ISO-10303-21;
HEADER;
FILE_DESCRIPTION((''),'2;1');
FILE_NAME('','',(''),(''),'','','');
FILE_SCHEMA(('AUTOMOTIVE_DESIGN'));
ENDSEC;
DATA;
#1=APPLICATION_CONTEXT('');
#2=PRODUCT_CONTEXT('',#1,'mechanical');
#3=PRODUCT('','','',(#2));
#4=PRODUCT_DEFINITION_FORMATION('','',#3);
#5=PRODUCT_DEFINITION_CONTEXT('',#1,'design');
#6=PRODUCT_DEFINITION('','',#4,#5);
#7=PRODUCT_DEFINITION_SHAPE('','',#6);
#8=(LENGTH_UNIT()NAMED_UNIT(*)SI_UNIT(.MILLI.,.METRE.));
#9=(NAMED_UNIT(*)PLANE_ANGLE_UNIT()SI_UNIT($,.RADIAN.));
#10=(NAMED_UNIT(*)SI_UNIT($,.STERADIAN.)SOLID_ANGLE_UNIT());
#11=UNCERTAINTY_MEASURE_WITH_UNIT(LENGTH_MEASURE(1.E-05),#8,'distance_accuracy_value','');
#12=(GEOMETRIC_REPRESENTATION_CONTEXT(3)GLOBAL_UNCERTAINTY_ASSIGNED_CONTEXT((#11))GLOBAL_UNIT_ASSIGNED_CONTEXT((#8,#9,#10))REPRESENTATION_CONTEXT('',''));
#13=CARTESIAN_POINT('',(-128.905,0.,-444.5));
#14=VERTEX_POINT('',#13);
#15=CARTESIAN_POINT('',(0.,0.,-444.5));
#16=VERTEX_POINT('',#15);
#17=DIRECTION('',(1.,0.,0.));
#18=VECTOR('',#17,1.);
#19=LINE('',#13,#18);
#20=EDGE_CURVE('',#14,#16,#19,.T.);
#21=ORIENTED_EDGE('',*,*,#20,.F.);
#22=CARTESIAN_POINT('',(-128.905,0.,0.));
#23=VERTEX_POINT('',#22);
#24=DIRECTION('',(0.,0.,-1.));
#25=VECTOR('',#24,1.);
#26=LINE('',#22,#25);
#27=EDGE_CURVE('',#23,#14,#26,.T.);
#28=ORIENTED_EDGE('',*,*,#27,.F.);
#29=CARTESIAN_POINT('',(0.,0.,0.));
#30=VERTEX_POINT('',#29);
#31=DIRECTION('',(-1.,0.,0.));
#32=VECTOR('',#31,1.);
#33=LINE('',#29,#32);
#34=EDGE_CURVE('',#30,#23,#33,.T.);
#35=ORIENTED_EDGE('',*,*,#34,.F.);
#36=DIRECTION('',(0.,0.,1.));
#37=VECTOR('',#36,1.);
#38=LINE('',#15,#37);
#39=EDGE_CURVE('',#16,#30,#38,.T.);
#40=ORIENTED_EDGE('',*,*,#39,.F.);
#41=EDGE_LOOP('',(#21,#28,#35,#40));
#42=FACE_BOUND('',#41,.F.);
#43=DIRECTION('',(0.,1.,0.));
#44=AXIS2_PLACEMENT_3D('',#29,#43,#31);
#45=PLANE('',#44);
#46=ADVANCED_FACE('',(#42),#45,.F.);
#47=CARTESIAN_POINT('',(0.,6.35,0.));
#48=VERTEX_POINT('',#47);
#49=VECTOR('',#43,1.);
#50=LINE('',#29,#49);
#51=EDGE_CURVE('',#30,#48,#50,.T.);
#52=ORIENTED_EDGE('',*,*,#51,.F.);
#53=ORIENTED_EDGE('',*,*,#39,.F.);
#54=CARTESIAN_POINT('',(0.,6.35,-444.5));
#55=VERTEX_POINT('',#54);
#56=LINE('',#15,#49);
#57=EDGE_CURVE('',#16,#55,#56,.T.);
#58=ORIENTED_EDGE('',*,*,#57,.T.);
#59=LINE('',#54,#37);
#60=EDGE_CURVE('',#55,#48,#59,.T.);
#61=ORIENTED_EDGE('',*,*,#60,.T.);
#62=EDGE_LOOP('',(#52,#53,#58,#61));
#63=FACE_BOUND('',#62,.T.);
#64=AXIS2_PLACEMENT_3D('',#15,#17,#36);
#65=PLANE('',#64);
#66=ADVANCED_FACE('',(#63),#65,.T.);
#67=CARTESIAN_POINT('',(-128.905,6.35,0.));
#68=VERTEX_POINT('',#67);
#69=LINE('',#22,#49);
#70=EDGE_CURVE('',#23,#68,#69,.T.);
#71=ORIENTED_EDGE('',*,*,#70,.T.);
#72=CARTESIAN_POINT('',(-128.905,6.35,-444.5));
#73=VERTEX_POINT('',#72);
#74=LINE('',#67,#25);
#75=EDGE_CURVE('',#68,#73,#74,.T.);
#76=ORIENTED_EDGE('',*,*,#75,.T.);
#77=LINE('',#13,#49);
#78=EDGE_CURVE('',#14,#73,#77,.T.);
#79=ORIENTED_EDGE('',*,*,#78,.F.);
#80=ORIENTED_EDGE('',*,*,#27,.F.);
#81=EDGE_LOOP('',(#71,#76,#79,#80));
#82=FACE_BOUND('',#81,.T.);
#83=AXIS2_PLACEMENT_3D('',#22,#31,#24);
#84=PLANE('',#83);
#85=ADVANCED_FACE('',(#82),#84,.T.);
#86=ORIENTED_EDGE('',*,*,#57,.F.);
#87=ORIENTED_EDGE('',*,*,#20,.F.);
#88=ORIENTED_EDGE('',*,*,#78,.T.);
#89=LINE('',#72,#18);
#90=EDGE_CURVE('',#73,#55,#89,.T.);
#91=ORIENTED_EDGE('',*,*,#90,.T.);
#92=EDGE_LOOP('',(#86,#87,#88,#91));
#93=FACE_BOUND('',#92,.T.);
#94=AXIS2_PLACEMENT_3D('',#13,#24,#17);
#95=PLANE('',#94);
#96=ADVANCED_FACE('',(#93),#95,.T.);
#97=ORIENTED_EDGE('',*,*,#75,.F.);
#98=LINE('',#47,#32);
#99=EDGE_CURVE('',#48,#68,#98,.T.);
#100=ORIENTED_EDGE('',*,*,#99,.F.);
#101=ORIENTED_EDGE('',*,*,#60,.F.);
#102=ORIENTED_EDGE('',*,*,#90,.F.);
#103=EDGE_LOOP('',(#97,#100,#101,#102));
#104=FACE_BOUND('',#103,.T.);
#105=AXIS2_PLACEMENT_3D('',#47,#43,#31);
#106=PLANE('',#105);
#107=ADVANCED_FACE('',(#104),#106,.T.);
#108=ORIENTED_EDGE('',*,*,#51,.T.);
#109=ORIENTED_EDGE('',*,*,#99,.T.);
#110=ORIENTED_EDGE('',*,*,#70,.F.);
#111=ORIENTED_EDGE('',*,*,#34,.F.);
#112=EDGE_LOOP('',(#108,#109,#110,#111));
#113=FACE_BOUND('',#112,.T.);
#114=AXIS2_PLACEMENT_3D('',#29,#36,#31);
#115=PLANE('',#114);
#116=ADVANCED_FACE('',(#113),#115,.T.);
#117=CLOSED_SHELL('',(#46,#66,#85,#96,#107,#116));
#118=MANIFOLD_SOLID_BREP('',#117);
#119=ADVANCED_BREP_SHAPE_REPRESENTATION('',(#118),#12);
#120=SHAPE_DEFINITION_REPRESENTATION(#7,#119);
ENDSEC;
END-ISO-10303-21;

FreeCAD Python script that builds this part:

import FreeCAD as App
import Part
import Sketcher
from FreeCAD import Vector
Q = App.Units.Quantity

doc = App.newDocument("Part")
body = doc.addObject("PartDesign::Body", "Body")

# Sketch on XZ plane
sketch1 = body.newObject("Sketcher::SketchObject", "Sketch")
sketch1.AttachmentSupport = (doc.getObject("XZ_Plane"), [""])
sketch1.MapMode = "FlatFace"
sketch1.addGeometry(Part.LineSegment(Vector(-129, 0, 0), Vector(0, 0, 0)), False)
sketch1.addGeometry(Part.LineSegment(Vector(0, 0, 0), Vector(0, -444, 0)), False)
sketch1.addGeometry(Part.LineSegment(Vector(0, -444, 0), Vector(-129, -444, 0)), False)
sketch1.addGeometry(Part.LineSegment(Vector(-129, -444, 0), Vector(-129, 0, 0)), False)
sketch1.addConstraint(Sketcher.Constraint("Coincident", 0, 2, 1, 1))
sketch1.addConstraint(Sketcher.Constraint("Coincident", 1, 2, 2, 1))
sketch1.addConstraint(Sketcher.Constraint("Coincident", 2, 2, 3, 1))
sketch1.addConstraint(Sketcher.Constraint("Coincident", 3, 2, 0, 1))
sketch1.addConstraint(Sketcher.Constraint("Horizontal", 0))
sketch1.addConstraint(Sketcher.Constraint("Vertical", 1))
sketch1.addConstraint(Sketcher.Constraint("Horizontal", 2))
sketch1.addConstraint(Sketcher.Constraint("Vertical", 3))
sketch1.addConstraint(Sketcher.Constraint("Coincident", 0, 2, -1, 1))
sketch1.addConstraint(Sketcher.Constraint("DistanceY", 1, 2, 1, 1, Q("17.5 in")))
sketch1.addConstraint(Sketcher.Constraint("DistanceX", 0, 1, 0, 2, Q("5.075 in")))
pad1 = body.newObject("PartDesign::Pad", "Pad")
pad1.Profile = sketch1
pad1.Length = Q("0.25 in")
pad1.Reversed = True

doc.recompute()
